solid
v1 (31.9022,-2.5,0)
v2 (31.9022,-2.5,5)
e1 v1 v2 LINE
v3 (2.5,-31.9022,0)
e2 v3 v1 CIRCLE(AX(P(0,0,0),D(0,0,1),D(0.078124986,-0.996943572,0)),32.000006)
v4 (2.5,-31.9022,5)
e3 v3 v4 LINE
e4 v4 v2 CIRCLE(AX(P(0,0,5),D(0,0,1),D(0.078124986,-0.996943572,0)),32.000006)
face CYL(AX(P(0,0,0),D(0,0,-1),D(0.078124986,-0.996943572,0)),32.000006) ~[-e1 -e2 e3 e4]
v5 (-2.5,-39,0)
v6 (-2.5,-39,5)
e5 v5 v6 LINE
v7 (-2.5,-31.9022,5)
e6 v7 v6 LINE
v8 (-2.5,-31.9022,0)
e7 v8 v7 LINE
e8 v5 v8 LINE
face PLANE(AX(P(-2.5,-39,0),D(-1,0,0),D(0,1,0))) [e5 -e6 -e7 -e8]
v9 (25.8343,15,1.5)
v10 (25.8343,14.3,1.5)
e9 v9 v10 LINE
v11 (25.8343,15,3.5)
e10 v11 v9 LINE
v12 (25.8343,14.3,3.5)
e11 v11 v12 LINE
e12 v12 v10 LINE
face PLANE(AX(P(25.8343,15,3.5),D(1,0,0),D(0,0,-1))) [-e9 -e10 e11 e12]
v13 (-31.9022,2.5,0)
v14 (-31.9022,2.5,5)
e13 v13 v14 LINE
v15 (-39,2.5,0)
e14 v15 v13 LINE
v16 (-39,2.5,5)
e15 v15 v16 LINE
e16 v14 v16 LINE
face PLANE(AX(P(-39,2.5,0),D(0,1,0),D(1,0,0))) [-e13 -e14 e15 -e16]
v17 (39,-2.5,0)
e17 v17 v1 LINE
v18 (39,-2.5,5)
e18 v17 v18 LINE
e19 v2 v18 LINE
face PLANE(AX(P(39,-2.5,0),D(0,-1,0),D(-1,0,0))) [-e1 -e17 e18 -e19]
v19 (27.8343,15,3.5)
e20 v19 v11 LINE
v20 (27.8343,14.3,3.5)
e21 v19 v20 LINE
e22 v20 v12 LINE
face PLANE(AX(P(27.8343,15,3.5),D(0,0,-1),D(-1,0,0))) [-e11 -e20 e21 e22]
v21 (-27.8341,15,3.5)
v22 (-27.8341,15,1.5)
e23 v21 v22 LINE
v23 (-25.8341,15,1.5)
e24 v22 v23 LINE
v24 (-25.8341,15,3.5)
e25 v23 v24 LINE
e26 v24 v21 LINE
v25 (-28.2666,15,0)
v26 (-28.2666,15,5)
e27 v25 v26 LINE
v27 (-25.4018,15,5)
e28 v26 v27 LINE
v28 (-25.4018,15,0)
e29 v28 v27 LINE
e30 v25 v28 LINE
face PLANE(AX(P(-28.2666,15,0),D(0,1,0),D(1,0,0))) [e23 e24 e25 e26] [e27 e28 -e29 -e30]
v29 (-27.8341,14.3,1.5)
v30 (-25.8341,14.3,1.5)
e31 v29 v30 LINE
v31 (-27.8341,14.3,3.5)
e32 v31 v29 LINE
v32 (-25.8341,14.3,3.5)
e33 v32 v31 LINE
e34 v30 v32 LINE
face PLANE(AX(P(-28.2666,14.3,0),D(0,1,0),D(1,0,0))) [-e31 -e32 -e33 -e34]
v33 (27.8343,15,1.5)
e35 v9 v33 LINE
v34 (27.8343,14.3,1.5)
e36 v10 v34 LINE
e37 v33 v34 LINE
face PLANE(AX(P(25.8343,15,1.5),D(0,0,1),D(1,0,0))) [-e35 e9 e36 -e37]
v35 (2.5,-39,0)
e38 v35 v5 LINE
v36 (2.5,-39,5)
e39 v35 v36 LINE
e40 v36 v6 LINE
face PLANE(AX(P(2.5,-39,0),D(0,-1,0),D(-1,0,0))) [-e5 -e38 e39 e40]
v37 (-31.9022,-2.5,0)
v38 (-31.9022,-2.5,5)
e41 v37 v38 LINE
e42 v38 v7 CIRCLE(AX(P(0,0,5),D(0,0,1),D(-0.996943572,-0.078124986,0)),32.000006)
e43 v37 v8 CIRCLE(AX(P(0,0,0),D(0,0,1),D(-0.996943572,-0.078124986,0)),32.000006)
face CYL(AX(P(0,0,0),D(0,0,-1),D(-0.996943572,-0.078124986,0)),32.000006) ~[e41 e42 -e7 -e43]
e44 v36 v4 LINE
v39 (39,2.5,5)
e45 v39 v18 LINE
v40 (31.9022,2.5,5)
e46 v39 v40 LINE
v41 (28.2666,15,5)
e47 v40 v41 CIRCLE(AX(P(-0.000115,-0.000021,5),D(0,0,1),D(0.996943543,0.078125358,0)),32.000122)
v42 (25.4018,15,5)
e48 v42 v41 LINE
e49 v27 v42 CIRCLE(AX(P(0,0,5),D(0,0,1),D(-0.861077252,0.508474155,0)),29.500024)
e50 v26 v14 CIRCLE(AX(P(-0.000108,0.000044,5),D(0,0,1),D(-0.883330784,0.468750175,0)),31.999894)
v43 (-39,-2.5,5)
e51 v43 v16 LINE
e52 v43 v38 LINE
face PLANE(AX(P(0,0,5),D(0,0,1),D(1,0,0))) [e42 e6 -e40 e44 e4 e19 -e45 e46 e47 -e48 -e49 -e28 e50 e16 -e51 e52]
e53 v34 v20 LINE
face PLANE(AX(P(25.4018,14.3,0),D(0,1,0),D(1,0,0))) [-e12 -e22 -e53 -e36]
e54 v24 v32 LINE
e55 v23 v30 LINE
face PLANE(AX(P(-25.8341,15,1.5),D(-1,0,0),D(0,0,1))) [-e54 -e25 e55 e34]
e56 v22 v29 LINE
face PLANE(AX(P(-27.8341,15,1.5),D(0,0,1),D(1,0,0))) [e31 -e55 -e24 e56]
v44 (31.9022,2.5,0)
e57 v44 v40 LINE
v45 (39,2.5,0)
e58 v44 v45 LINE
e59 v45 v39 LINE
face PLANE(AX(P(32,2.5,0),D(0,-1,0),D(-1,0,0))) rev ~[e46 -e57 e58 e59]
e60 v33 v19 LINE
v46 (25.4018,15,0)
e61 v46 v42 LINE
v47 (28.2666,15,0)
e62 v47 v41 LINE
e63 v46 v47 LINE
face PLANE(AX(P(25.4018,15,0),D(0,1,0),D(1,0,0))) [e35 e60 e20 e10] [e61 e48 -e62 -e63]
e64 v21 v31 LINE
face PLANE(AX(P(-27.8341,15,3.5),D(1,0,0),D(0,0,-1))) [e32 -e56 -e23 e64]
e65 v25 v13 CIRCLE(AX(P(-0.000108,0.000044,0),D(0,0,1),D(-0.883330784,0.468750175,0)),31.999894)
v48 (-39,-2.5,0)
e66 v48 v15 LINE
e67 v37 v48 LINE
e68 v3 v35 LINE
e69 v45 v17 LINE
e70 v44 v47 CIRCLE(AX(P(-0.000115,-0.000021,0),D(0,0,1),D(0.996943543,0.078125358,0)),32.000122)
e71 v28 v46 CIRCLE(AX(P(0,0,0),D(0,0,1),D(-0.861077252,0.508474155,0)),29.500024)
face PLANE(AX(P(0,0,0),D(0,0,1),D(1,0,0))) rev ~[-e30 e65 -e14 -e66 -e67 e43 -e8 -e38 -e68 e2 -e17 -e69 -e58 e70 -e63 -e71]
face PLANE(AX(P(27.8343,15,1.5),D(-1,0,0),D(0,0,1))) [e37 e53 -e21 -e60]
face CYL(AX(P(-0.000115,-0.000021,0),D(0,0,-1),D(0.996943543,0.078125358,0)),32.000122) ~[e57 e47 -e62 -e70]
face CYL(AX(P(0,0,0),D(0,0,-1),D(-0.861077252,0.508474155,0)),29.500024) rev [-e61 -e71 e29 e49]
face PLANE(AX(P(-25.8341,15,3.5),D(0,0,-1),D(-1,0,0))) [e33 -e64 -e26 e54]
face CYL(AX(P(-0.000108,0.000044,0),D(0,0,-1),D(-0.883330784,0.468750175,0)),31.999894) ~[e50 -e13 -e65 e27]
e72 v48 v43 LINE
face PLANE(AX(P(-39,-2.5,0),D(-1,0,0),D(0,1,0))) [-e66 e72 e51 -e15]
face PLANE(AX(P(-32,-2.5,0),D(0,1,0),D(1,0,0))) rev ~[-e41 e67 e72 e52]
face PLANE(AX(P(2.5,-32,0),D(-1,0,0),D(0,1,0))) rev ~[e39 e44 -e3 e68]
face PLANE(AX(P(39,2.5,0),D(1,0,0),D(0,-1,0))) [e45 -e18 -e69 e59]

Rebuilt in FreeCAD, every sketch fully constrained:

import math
import FreeCAD as App
import Part
import Sketcher

V = App.Vector

doc = App.newDocument("Part")
body = doc.addObject("PartDesign::Body", "Body")

sketch1 = body.newObject("Sketcher::SketchObject", "Sketch")
sketch1.AttachmentSupport = (doc.getObject("XY_Plane"), [""])
sketch1.MapMode = "FlatFace"
sketch1.addGeometry([
    Part.ArcOfCircle(Part.Circle(V(0, 0, 0), V(0, 0, 1), 29.5), math.radians(149), math.radians(391)),
    Part.LineSegment(V(-25.4, 15, 0), V(-28.3, 15, 0)),
    Part.ArcOfCircle(Part.Circle(V(0, 0, 0), V(0, 0, 1), 32), math.radians(152), math.radians(176)),
    Part.LineSegment(V(-31.9, 2.5, 0), V(-39, 2.5, 0)),
    Part.LineSegment(V(-39, 2.5, 0), V(-39, -2.5, 0)),
    Part.LineSegment(V(-39, -2.5, 0), V(-31.9, -2.5, 0)),
    Part.ArcOfCircle(Part.Circle(V(0, 0, 0), V(0, 0, 1), 32), math.radians(-176), math.radians(-94)),
    Part.LineSegment(V(-2.5, -31.9, 0), V(-2.5, -39, 0)),
    Part.LineSegment(V(-2.5, -39, 0), V(2.5, -39, 0)),
    Part.LineSegment(V(2.5, -39, 0), V(2.5, -31.9, 0)),
    Part.ArcOfCircle(Part.Circle(V(0, 0, 0), V(0, 0, 1), 32), math.radians(-86), math.radians(-4)),
    Part.LineSegment(V(31.9, -2.5, 0), V(39, -2.5, 0)),
    Part.LineSegment(V(39, -2.5, 0), V(39, 2.5, 0)),
    Part.LineSegment(V(39, 2.5, 0), V(31.9, 2.5, 0)),
    Part.ArcOfCircle(Part.Circle(V(0, 0, 0), V(0, 0, 1), 32), math.radians(4), math.radians(28)),
    Part.LineSegment(V(28.3, 15, 0), V(25.4, 15, 0)),
], False)
sketch1.addConstraint([
    Sketcher.Constraint("Coincident", 0, 1, 1, 1),
    Sketcher.Constraint("Coincident", 1, 2, 2, 1),
    Sketcher.Constraint("Coincident", 2, 2, 3, 1),
    Sketcher.Constraint("Coincident", 3, 2, 4, 1),
    Sketcher.Constraint("Coincident", 4, 2, 5, 1),
    Sketcher.Constraint("Coincident", 5, 2, 6, 1),
    Sketcher.Constraint("Coincident", 6, 2, 7, 1),
    Sketcher.Constraint("Coincident", 7, 2, 8, 1),
    Sketcher.Constraint("Coincident", 8, 2, 9, 1),
    Sketcher.Constraint("Coincident", 9, 2, 10, 1),
    Sketcher.Constraint("Coincident", 10, 2, 11, 1),
    Sketcher.Constraint("Coincident", 11, 2, 12, 1),
    Sketcher.Constraint("Coincident", 12, 2, 13, 1),
    Sketcher.Constraint("Coincident", 13, 2, 14, 1),
    Sketcher.Constraint("Coincident", 14, 2, 15, 1),
    Sketcher.Constraint("Coincident", 15, 2, 0, 2),
    Sketcher.Constraint("Horizontal", 1),
    Sketcher.Constraint("Horizontal", 3),
    Sketcher.Constraint("Vertical", 4),
    Sketcher.Constraint("Horizontal", 5),
    Sketcher.Constraint("Vertical", 7),
    Sketcher.Constraint("Horizontal", 8),
    Sketcher.Constraint("Vertical", 9),
    Sketcher.Constraint("Horizontal", 11),
    Sketcher.Constraint("Vertical", 12),
    Sketcher.Constraint("Horizontal", 13),
    Sketcher.Constraint("Horizontal", 15),
    Sketcher.Constraint("Coincident", 0, 3, -1, 1),
    Sketcher.Constraint("Coincident", 2, 3, -1, 1),
    Sketcher.Constraint("Coincident", 6, 3, -1, 1),
    Sketcher.Constraint("Coincident", 10, 3, -1, 1),
    Sketcher.Constraint("Coincident", 14, 3, -1, 1),
    Sketcher.Constraint("Equal", 2, 6),
    Sketcher.Constraint("Equal", 6, 10),
    Sketcher.Constraint("Equal", 10, 14),
    Sketcher.Constraint("Symmetric", 3, 2, 11, 2, -1, 1),
    Sketcher.Constraint("Horizontal", 6, 2, 9, 2),
    Sketcher.Constraint("Horizontal", 5, 2, 10, 2),
    Sketcher.Constraint("Horizontal", 3, 2, 12, 2),
    Sketcher.Constraint("Horizontal", 1, 2, 14, 2),
    Sketcher.Constraint("Equal", 8, 4),
    Sketcher.Constraint("Equal", 13, 7),
    Sketcher.Constraint("Radius", 0, 29.5),
    Sketcher.Constraint("DistanceX", 8, 1, 8, 2, 5.0),
    Sketcher.Constraint("Radius", 2, 32.0),
    Sketcher.Constraint("DistanceY", -1, 1, 0, 1, 15.0),
    Sketcher.Constraint("DistanceX", 3, 2, -1, 1, 39.0),
])
pad1 = body.newObject("PartDesign::Pad", "Pad")
pad1.Profile = sketch1
pad1.Length = 5

sketch2 = body.newObject("Sketcher::SketchObject", "Sketch001")
sketch2.AttachmentSupport = (doc.getObject("XZ_Plane"), [""])
sketch2.MapMode = "FlatFace"
sketch2.AttachmentOffset = App.Placement(V(0, 0, -15), App.Rotation())
sketch2.addGeometry([
    Part.LineSegment(V(-25.8, 1.5, 0), V(-27.8, 1.5, 0)),
    Part.LineSegment(V(-27.8, 1.5, 0), V(-27.8, 3.5, 0)),
    Part.LineSegment(V(-27.8, 3.5, 0), V(-25.8, 3.5, 0)),
    Part.LineSegment(V(-25.8, 3.5, 0), V(-25.8, 1.5, 0)),
], False)
sketch2.addConstraint([
    Sketcher.Constraint("Coincident", 0, 2, 1, 1),
    Sketcher.Constraint("Coincident", 1, 2, 2, 1),
    Sketcher.Constraint("Coincident", 2, 2, 3, 1),
    Sketcher.Constraint("Coincident", 3, 2, 0, 1),
    Sketcher.Constraint("Horizontal", 0),
    Sketcher.Constraint("Vertical", 1),
    Sketcher.Constraint("Horizontal", 2),
    Sketcher.Constraint("Vertical", 3),
    Sketcher.Constraint("Equal", 2, 1),
    Sketcher.Constraint("DistanceX", 0, 2, 0, 1, 2.0),
    Sketcher.Constraint("DistanceY", -1, 1, 0, 2, 1.5),
    Sketcher.Constraint("DistanceX", 0, 2, -1, 1, 27.834),
])
pocket1 = body.newObject("PartDesign::Pocket", "Pocket")
pocket1.Profile = sketch2
pocket1.Length = 0.7
pocket1.Reversed = True

sketch3 = body.newObject("Sketcher::SketchObject", "Sketch002")
sketch3.AttachmentSupport = (doc.getObject("XZ_Plane"), [""])
sketch3.MapMode = "FlatFace"
sketch3.AttachmentOffset = App.Placement(V(0, 0, -15), App.Rotation())
sketch3.addGeometry([
    Part.LineSegment(V(27.8, 1.5, 0), V(25.8, 1.5, 0)),
    Part.LineSegment(V(25.8, 1.5, 0), V(25.8, 3.5, 0)),
    Part.LineSegment(V(25.8, 3.5, 0), V(27.8, 3.5, 0)),
    Part.LineSegment(V(27.8, 3.5, 0), V(27.8, 1.5, 0)),
], False)
sketch3.addConstraint([
    Sketcher.Constraint("Coincident", 0, 2, 1, 1),
    Sketcher.Constraint("Coincident", 1, 2, 2, 1),
    Sketcher.Constraint("Coincident", 2, 2, 3, 1),
    Sketcher.Constraint("Coincident", 3, 2, 0, 1),
    Sketcher.Constraint("Horizontal", 0),
    Sketcher.Constraint("Vertical", 1),
    Sketcher.Constraint("Horizontal", 2),
    Sketcher.Constraint("Vertical", 3),
    Sketcher.Constraint("Equal", 2, 1),
    Sketcher.Constraint("DistanceX", 0, 2, 0, 1, 2.0),
    Sketcher.Constraint("DistanceY", -1, 1, 0, 2, 1.5),
    Sketcher.Constraint("DistanceX", -1, 1, 0, 2, 25.8343),
])
pocket2 = body.newObject("PartDesign::Pocket", "Pocket001")
pocket2.Profile = sketch3
pocket2.Length = 0.7
pocket2.Reversed = True

doc.recompute()
